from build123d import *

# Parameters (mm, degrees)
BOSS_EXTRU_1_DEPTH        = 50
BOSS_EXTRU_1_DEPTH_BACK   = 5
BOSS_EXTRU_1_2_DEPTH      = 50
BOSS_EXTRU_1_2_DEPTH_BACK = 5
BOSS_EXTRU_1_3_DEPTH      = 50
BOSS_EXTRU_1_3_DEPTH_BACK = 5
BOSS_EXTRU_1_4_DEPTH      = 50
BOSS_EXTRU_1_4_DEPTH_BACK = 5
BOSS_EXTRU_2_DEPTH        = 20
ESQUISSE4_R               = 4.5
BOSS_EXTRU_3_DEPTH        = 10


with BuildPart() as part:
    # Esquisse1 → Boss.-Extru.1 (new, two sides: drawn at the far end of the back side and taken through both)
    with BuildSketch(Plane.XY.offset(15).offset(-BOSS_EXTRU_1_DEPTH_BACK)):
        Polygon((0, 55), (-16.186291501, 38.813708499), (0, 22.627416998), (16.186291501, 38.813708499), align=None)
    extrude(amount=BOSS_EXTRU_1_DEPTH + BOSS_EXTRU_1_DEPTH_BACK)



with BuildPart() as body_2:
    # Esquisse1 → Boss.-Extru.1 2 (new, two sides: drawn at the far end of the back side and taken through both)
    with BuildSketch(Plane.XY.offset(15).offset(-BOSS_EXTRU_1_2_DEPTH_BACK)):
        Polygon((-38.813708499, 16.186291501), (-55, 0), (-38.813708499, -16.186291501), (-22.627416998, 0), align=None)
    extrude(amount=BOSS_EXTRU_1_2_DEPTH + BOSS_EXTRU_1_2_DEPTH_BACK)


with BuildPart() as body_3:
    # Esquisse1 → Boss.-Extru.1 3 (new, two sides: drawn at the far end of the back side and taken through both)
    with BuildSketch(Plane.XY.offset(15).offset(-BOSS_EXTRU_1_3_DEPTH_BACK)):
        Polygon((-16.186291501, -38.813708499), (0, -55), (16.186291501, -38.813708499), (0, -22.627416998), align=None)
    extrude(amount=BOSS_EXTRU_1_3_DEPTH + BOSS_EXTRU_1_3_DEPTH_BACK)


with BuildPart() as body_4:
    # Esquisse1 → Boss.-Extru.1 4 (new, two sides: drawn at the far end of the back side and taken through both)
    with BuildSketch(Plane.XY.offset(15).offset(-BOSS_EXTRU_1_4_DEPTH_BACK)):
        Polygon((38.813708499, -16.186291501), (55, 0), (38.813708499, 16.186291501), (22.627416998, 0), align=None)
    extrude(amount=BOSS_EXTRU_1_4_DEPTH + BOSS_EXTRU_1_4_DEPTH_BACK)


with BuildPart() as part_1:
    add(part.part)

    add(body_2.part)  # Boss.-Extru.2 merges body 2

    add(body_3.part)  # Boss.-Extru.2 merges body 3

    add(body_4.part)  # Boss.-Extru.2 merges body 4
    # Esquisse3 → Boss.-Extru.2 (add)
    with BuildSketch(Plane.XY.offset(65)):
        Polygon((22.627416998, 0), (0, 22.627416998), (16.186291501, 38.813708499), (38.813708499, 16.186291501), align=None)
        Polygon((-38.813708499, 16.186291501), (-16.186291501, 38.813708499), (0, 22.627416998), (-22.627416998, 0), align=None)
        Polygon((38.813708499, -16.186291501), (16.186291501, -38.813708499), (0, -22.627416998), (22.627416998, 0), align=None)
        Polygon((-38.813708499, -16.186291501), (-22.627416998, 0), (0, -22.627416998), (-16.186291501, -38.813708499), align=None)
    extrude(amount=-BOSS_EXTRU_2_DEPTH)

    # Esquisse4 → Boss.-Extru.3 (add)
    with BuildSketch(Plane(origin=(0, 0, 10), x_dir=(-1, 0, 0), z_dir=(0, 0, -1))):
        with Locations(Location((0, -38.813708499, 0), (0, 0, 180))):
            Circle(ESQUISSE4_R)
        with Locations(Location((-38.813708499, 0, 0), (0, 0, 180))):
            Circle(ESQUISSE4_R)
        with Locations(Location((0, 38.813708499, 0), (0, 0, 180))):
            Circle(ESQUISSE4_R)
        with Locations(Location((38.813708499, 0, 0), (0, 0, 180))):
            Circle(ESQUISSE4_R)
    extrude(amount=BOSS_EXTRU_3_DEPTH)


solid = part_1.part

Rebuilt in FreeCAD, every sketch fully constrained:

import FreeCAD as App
import Part
import Sketcher
from FreeCAD import Vector
Q = App.Units.Quantity

doc = App.newDocument("Part")
params = doc.addObject("Spreadsheet::Sheet", "Params")
for row, (alias, value) in enumerate([
    ("pad1_length", "50 mm"),
    ("pad1_length2", "5 mm"),
    ("pad2_length", "50 mm"),
    ("pad2_length2", "5 mm"),
    ("pad3_length", "50 mm"),
    ("pad3_length2", "5 mm"),
    ("pad4_length", "50 mm"),
    ("pad4_length2", "5 mm"),
    ("sketch5_length", "32 mm"),
    ("pad5_length", "20 mm"),
    ("sketch6_diameter", "9 mm"),
    ("pad6_length", "10 mm"),
], start=1):
    params.set(f"A{row}", alias)
    params.set(f"B{row}", "=" + value)
    params.setAlias(f"B{row}", alias)

body = doc.addObject("PartDesign::Body", "Body")

# Sketch on XY plane
sketch1 = doc.addObject("Sketcher::SketchObject", "Sketch")
body.addObject(sketch1)
sketch1.AttachmentSupport = (doc.XY_Plane, [""])
sketch1.MapMode = "FlatFace"
sketch1.AttachmentOffset = App.Placement(Vector(0, 0, 15), App.Rotation())
sketch1.addGeometry(Part.LineSegment(Vector(0, 55, 0), Vector(-16, 39, 0)), False)
sketch1.addGeometry(Part.LineSegment(Vector(-16, 39, 0), Vector(0, 23, 0)), False)
sketch1.addGeometry(Part.LineSegment(Vector(0, 23, 0), Vector(16, 39, 0)), False)
sketch1.addGeometry(Part.LineSegment(Vector(16, 39, 0), Vector(0, 55, 0)), False)
sketch1.addConstraint(Sketcher.Constraint("Coincident", 0, 2, 1, 1))
sketch1.addConstraint(Sketcher.Constraint("Coincident", 1, 2, 2, 1))
sketch1.addConstraint(Sketcher.Constraint("Coincident", 2, 2, 3, 1))
sketch1.addConstraint(Sketcher.Constraint("Coincident", 3, 2, 0, 1))
sketch1.addConstraint(Sketcher.Constraint("Symmetric", 0, 2, 2, 2, -2))
sketch1.addConstraint(Sketcher.Constraint("PointOnObject", 1, 2, -2))
sketch1.addConstraint(Sketcher.Constraint("PointOnObject", 3, 2, -2))
sketch1.addConstraint(Sketcher.Constraint("Perpendicular", 0, 1))
sketch1.addConstraint(Sketcher.Constraint("Perpendicular", 1, 2))
sketch1.addConstraint(Sketcher.Constraint("DistanceY", -1, 1, 3, 2, Q("55 mm")))
sketch1.addConstraint(Sketcher.Constraint("DistanceX", 0, 2, -1, 1, Q("16.186292 mm")))
pad1 = doc.addObject("PartDesign::Pad", "Pad")
body.addObject(pad1)
pad1.Profile = sketch1
pad1.Type = "TwoLengths"
pad1.setExpression("Length", "Params.pad1_length")
pad1.setExpression("Length2", "Params.pad1_length2")
body2 = doc.addObject("PartDesign::Body", "Body001")

# Sketch on XY plane
sketch2 = doc.addObject("Sketcher::SketchObject", "Sketch001")
body2.addObject(sketch2)
sketch2.AttachmentSupport = (doc.getObject("XY_Plane001"), [""])
sketch2.MapMode = "FlatFace"
sketch2.AttachmentOffset = App.Placement(Vector(0, 0, 15), App.Rotation())
sketch2.addGeometry(Part.LineSegment(Vector(-39, 16, 0), Vector(-55, 0, 0)), False)
sketch2.addGeometry(Part.LineSegment(Vector(-55, 0, 0), Vector(-39, -16, 0)), False)
sketch2.addGeometry(Part.LineSegment(Vector(-39, -16, 0), Vector(-23, 0, 0)), False)
sketch2.addGeometry(Part.LineSegment(Vector(-23, 0, 0), Vector(-39, 16, 0)), False)
sketch2.addConstraint(Sketcher.Constraint("Coincident", 0, 2, 1, 1))
sketch2.addConstraint(Sketcher.Constraint("Coincident", 1, 2, 2, 1))
sketch2.addConstraint(Sketcher.Constraint("Coincident", 2, 2, 3, 1))
sketch2.addConstraint(Sketcher.Constraint("Coincident", 3, 2, 0, 1))
sketch2.addConstraint(Sketcher.Constraint("Symmetric", 1, 2, 3, 2, -1))
sketch2.addConstraint(Sketcher.Constraint("PointOnObject", 0, 2, -1))
sketch2.addConstraint(Sketcher.Constraint("PointOnObject", 2, 2, -1))
sketch2.addConstraint(Sketcher.Constraint("Perpendicular", 0, 1))
sketch2.addConstraint(Sketcher.Constraint("Perpendicular", 1, 2))
sketch2.addConstraint(Sketcher.Constraint("DistanceX", 0, 2, -1, 1, Q("55 mm")))
sketch2.addConstraint(Sketcher.Constraint("DistanceX", 1, 2, -1, 1, Q("38.813708 mm")))
pad2 = doc.addObject("PartDesign::Pad", "Pad001")
body2.addObject(pad2)
pad2.Profile = sketch2
pad2.Type = "TwoLengths"
pad2.setExpression("Length", "Params.pad2_length")
pad2.setExpression("Length2", "Params.pad2_length2")
body3 = doc.addObject("PartDesign::Body", "Body002")

# Sketch on XY plane
sketch3 = doc.addObject("Sketcher::SketchObject", "Sketch002")
body3.addObject(sketch3)
sketch3.AttachmentSupport = (doc.getObject("XY_Plane002"), [""])
sketch3.MapMode = "FlatFace"
sketch3.AttachmentOffset = App.Placement(Vector(0, 0, 15), App.Rotation())
sketch3.addGeometry(Part.LineSegment(Vector(-16, -39, 0), Vector(0, -55, 0)), False)
sketch3.addGeometry(Part.LineSegment(Vector(0, -55, 0), Vector(16, -39, 0)), False)
sketch3.addGeometry(Part.LineSegment(Vector(16, -39, 0), Vector(0, -23, 0)), False)
sketch3.addGeometry(Part.LineSegment(Vector(0, -23, 0), Vector(-16, -39, 0)), False)
sketch3.addConstraint(Sketcher.Constraint("Coincident", 0, 2, 1, 1))
sketch3.addConstraint(Sketcher.Constraint("Coincident", 1, 2, 2, 1))
sketch3.addConstraint(Sketcher.Constraint("Coincident", 2, 2, 3, 1))
sketch3.addConstraint(Sketcher.Constraint("Coincident", 3, 2, 0, 1))
sketch3.addConstraint(Sketcher.Constraint("Symmetric", 1, 2, 3, 2, -2))
sketch3.addConstraint(Sketcher.Constraint("PointOnObject", 0, 2, -2))
sketch3.addConstraint(Sketcher.Constraint("PointOnObject", 2, 2, -2))
sketch3.addConstraint(Sketcher.Constraint("Perpendicular", 0, 1))
sketch3.addConstraint(Sketcher.Constraint("Perpendicular", 1, 2))
sketch3.addConstraint(Sketcher.Constraint("DistanceY", 0, 2, -1, 1, Q("55 mm")))
sketch3.addConstraint(Sketcher.Constraint("DistanceX", -1, 1, 1, 2, Q("16.186292 mm")))
pad3 = doc.addObject("PartDesign::Pad", "Pad002")
body3.addObject(pad3)
pad3.Profile = sketch3
pad3.Type = "TwoLengths"
pad3.setExpression("Length", "Params.pad3_length")
pad3.setExpression("Length2", "Params.pad3_length2")
body4 = doc.addObject("PartDesign::Body", "Body003")

# Sketch on XY plane
sketch4 = doc.addObject("Sketcher::SketchObject", "Sketch003")
body4.addObject(sketch4)
sketch4.AttachmentSupport = (doc.getObject("XY_Plane003"), [""])
sketch4.MapMode = "FlatFace"
sketch4.AttachmentOffset = App.Placement(Vector(0, 0, 15), App.Rotation())
sketch4.addGeometry(Part.LineSegment(Vector(39, -16, 0), Vector(55, 0, 0)), False)
sketch4.addGeometry(Part.LineSegment(Vector(55, 0, 0), Vector(39, 16, 0)), False)
sketch4.addGeometry(Part.LineSegment(Vector(39, 16, 0), Vector(23, 0, 0)), False)
sketch4.addGeometry(Part.LineSegment(Vector(23, 0, 0), Vector(39, -16, 0)), False)
sketch4.addConstraint(Sketcher.Constraint("Coincident", 0, 2, 1, 1))
sketch4.addConstraint(Sketcher.Constraint("Coincident", 1, 2, 2, 1))
sketch4.addConstraint(Sketcher.Constraint("Coincident", 2, 2, 3, 1))
sketch4.addConstraint(Sketcher.Constraint("Coincident", 3, 2, 0, 1))
sketch4.addConstraint(Sketcher.Constraint("Symmetric", 1, 2, 3, 2, -1))
sketch4.addConstraint(Sketcher.Constraint("PointOnObject", 0, 2, -1))
sketch4.addConstraint(Sketcher.Constraint("PointOnObject", 2, 2, -1))
sketch4.addConstraint(Sketcher.Constraint("Perpendicular", 0, 1))
sketch4.addConstraint(Sketcher.Constraint("Perpendicular", 1, 2))
sketch4.addConstraint(Sketcher.Constraint("DistanceX", -1, 1, 0, 2, Q("55 mm")))
sketch4.addConstraint(Sketcher.Constraint("DistanceX", -1, 1, 1, 2, Q("38.813708 mm")))
pad4 = doc.addObject("PartDesign::Pad", "Pad003")
body4.addObject(pad4)
pad4.Profile = sketch4
pad4.Type = "TwoLengths"
pad4.setExpression("Length", "Params.pad4_length")
pad4.setExpression("Length2", "Params.pad4_length2")
body.AllowCompound = True
doc.recompute()

boolean = doc.addObject("PartDesign::Boolean", "Boolean")
body.addObject(boolean)
boolean.Type = "Fuse"
boolean.addObjects([body2])
doc.recompute()

boolean2 = doc.addObject("PartDesign::Boolean", "Boolean001")
body.addObject(boolean2)
boolean2.Type = "Fuse"
boolean2.addObjects([body3])
doc.recompute()

boolean3 = doc.addObject("PartDesign::Boolean", "Boolean002")
body.addObject(boolean3)
boolean3.Type = "Fuse"
boolean3.addObjects([body4])

# Sketch on XY plane
sketch5 = doc.addObject("Sketcher::SketchObject", "Sketch004")
body.addObject(sketch5)
sketch5.AttachmentSupport = (doc.XY_Plane, [""])
sketch5.MapMode = "FlatFace"
sketch5.AttachmentOffset = App.Placement(Vector(0, 0, 65), App.Rotation())
sketch5.addGeometry(Part.LineSegment(Vector(0, 23, 0), Vector(23, 0, 0)), False)
sketch5.addGeometry(Part.LineSegment(Vector(23, 0, 0), Vector(39, 16, 0)), False)
sketch5.addGeometry(Part.LineSegment(Vector(39, 16, 0), Vector(16, 39, 0)), False)
sketch5.addGeometry(Part.LineSegment(Vector(16, 39, 0), Vector(0, 23, 0)), False)
sketch5.addGeometry(Part.LineSegment(Vector(-16, 39, 0), Vector(-39, 16, 0)), False)
sketch5.addGeometry(Part.LineSegment(Vector(-39, 16, 0), Vector(-23, 0, 0)), False)
sketch5.addGeometry(Part.LineSegment(Vector(-23, 0, 0), Vector(0, 23, 0)), False)
sketch5.addGeometry(Part.LineSegment(Vector(0, 23, 0), Vector(-16, 39, 0)), False)
sketch5.addGeometry(Part.LineSegment(Vector(16, -39, 0), Vector(39, -16, 0)), False)
sketch5.addGeometry(Part.LineSegment(Vector(39, -16, 0), Vector(23, 0, 0)), False)
sketch5.addGeometry(Part.LineSegment(Vector(23, 0, 0), Vector(0, -23, 0)), False)
sketch5.addGeometry(Part.LineSegment(Vector(0, -23, 0), Vector(16, -39, 0)), False)
sketch5.addGeometry(Part.LineSegment(Vector(-23, 0, 0), Vector(-39, -16, 0)), False)
sketch5.addGeometry(Part.LineSegment(Vector(-39, -16, 0), Vector(-16, -39, 0)), False)
sketch5.addGeometry(Part.LineSegment(Vector(-16, -39, 0), Vector(0, -23, 0)), False)
sketch5.addGeometry(Part.LineSegment(Vector(0, -23, 0), Vector(-23, 0, 0)), False)
sketch5.addConstraint(Sketcher.Constraint("Coincident", 0, 2, 1, 1))
sketch5.addConstraint(Sketcher.Constraint("Coincident", 1, 2, 2, 1))
sketch5.addConstraint(Sketcher.Constraint("Coincident", 2, 2, 3, 1))
sketch5.addConstraint(Sketcher.Constraint("Coincident", 3, 2, 0, 1))
sketch5.addConstraint(Sketcher.Constraint("Coincident", 4, 2, 5, 1))
sketch5.addConstraint(Sketcher.Constraint("Coincident", 5, 2, 6, 1))
sketch5.addConstraint(Sketcher.Constraint("Coincident", 6, 2, 7, 1))
sketch5.addConstraint(Sketcher.Constraint("Coincident", 7, 2, 4, 1))
sketch5.addConstraint(Sketcher.Constraint("Coincident", 8, 2, 9, 1))
sketch5.addConstraint(Sketcher.Constraint("Coincident", 9, 2, 10, 1))
sketch5.addConstraint(Sketcher.Constraint("Coincident", 10, 2, 11, 1))
sketch5.addConstraint(Sketcher.Constraint("Coincident", 11, 2, 8, 1))
sketch5.addConstraint(Sketcher.Constraint("Coincident", 12, 2, 13, 1))
sketch5.addConstraint(Sketcher.Constraint("Coincident", 13, 2, 14, 1))
sketch5.addConstraint(Sketcher.Constraint("Coincident", 14, 2, 15, 1))
sketch5.addConstraint(Sketcher.Constraint("Coincident", 15, 2, 12, 1))
sketch5.addConstraint(Sketcher.Constraint("Coincident", 6, 2, 3, 2))
sketch5.addConstraint(Sketcher.Constraint("Coincident", 9, 2, 0, 2))
sketch5.addConstraint(Sketcher.Constraint("Coincident", 14, 2, 10, 2))
sketch5.addConstraint(Sketcher.Constraint("Coincident", 15, 2, 5, 2))
sketch5.addConstraint(Sketcher.Constraint("Symmetric", 0, 2, 5, 2, -1, 1))
sketch5.addConstraint(Sketcher.Constraint("Symmetric", 4, 2, 8, 2, -1, 1))
sketch5.addConstraint(Sketcher.Constraint("Symmetric", 3, 2, 10, 2, -1, 1))
sketch5.addConstraint(Sketcher.Constraint("Symmetric", 7, 2, 11, 2, -1, 1))
sketch5.addConstraint(Sketcher.Constraint("Symmetric", 1, 2, 12, 2, -1, 1))
sketch5.addConstraint(Sketcher.Constraint("Symmetric", 2, 2, 13, 2, -1, 1))
sketch5.addConstraint(Sketcher.Constraint("Symmetric", 1, 2, 4, 2, -2))
sketch5.addConstraint(Sketcher.Constraint("Symmetric", 2, 2, 7, 2, -2))
sketch5.addConstraint(Sketcher.Constraint("PointOnObject", 0, 2, -1))
sketch5.addConstraint(Sketcher.Constraint("PointOnObject", 3, 2, -2))
sketch5.addConstraint(Sketcher.Constraint("Perpendicular", 0, 1))
sketch5.addConstraint(Sketcher.Constraint("Perpendicular", 1, 2))
sketch5.addConstraint(Sketcher.Constraint("Perpendicular", 2, 3))
sketch5.addConstraint(Sketcher.Constraint("Parallel", 3, 4))
sketch5.addConstraint(Sketcher.Constraint("Distance", 0, Q("32 mm")))
sketch5.addConstraint(Sketcher.Constraint("DistanceX", 4, 2, 2, 2, Q("55 mm")))
sketch5.setExpression("Constraints[34]", "Params.sketch5_length")
pad5 = doc.addObject("PartDesign::Pad", "Pad004")
body.addObject(pad5)
pad5.Profile = sketch5
pad5.setExpression("Length", "Params.pad5_length")
pad5.Reversed = True

# Sketch on XY plane
sketch6 = doc.addObject("Sketcher::SketchObject", "Sketch005")
body.addObject(sketch6)
sketch6.AttachmentSupport = (doc.XY_Plane, [""])
sketch6.MapMode = "FlatFace"
sketch6.AttachmentOffset = App.Placement(Vector(0, 0, 10), App.Rotation())
sketch6.addGeometry(Part.Circle(Vector(0, -38.8, 0), Vector(0, 0, 1), 4.5), False)
sketch6.addGeometry(Part.Circle(Vector(38.8, 0, 0), Vector(0, 0, 1), 4.5), False)
sketch6.addGeometry(Part.Circle(Vector(0, 38.8, 0), Vector(0, 0, 1), 4.5), False)
sketch6.addGeometry(Part.Circle(Vector(-38.8, 0, 0), Vector(0, 0, 1), 4.5), False)
sketch6.addConstraint(Sketcher.Constraint("Equal", 0, 1))
sketch6.addConstraint(Sketcher.Constraint("Equal", 1, 2))
sketch6.addConstraint(Sketcher.Constraint("Equal", 2, 3))
sketch6.addConstraint(Sketcher.Constraint("Symmetric", 0, 3, 2, 3, -1, 1))
sketch6.addConstraint(Sketcher.Constraint("Symmetric", 1, 3, 3, 3, -1, 1))
sketch6.addConstraint(Sketcher.Constraint("PointOnObject", 0, 3, -2))
sketch6.addConstraint(Sketcher.Constraint("PointOnObject", 1, 3, -1))
sketch6.addConstraint(Sketcher.Constraint("Diameter", 0, Q("9 mm")))
sketch6.addConstraint(Sketcher.Constraint("DistanceY", 0, 3, -1, 1, Q("38.813708 mm")))
sketch6.addConstraint(Sketcher.Constraint("DistanceX", -1, 1, 1, 3, Q("38.813708 mm")))
sketch6.setExpression("Constraints[7]", "Params.sketch6_diameter")
pad6 = doc.addObject("PartDesign::Pad", "Pad005")
body.addObject(pad6)
pad6.Profile = sketch6
pad6.setExpression("Length", "Params.pad6_length")
pad6.Reversed = True

doc.recompute()
